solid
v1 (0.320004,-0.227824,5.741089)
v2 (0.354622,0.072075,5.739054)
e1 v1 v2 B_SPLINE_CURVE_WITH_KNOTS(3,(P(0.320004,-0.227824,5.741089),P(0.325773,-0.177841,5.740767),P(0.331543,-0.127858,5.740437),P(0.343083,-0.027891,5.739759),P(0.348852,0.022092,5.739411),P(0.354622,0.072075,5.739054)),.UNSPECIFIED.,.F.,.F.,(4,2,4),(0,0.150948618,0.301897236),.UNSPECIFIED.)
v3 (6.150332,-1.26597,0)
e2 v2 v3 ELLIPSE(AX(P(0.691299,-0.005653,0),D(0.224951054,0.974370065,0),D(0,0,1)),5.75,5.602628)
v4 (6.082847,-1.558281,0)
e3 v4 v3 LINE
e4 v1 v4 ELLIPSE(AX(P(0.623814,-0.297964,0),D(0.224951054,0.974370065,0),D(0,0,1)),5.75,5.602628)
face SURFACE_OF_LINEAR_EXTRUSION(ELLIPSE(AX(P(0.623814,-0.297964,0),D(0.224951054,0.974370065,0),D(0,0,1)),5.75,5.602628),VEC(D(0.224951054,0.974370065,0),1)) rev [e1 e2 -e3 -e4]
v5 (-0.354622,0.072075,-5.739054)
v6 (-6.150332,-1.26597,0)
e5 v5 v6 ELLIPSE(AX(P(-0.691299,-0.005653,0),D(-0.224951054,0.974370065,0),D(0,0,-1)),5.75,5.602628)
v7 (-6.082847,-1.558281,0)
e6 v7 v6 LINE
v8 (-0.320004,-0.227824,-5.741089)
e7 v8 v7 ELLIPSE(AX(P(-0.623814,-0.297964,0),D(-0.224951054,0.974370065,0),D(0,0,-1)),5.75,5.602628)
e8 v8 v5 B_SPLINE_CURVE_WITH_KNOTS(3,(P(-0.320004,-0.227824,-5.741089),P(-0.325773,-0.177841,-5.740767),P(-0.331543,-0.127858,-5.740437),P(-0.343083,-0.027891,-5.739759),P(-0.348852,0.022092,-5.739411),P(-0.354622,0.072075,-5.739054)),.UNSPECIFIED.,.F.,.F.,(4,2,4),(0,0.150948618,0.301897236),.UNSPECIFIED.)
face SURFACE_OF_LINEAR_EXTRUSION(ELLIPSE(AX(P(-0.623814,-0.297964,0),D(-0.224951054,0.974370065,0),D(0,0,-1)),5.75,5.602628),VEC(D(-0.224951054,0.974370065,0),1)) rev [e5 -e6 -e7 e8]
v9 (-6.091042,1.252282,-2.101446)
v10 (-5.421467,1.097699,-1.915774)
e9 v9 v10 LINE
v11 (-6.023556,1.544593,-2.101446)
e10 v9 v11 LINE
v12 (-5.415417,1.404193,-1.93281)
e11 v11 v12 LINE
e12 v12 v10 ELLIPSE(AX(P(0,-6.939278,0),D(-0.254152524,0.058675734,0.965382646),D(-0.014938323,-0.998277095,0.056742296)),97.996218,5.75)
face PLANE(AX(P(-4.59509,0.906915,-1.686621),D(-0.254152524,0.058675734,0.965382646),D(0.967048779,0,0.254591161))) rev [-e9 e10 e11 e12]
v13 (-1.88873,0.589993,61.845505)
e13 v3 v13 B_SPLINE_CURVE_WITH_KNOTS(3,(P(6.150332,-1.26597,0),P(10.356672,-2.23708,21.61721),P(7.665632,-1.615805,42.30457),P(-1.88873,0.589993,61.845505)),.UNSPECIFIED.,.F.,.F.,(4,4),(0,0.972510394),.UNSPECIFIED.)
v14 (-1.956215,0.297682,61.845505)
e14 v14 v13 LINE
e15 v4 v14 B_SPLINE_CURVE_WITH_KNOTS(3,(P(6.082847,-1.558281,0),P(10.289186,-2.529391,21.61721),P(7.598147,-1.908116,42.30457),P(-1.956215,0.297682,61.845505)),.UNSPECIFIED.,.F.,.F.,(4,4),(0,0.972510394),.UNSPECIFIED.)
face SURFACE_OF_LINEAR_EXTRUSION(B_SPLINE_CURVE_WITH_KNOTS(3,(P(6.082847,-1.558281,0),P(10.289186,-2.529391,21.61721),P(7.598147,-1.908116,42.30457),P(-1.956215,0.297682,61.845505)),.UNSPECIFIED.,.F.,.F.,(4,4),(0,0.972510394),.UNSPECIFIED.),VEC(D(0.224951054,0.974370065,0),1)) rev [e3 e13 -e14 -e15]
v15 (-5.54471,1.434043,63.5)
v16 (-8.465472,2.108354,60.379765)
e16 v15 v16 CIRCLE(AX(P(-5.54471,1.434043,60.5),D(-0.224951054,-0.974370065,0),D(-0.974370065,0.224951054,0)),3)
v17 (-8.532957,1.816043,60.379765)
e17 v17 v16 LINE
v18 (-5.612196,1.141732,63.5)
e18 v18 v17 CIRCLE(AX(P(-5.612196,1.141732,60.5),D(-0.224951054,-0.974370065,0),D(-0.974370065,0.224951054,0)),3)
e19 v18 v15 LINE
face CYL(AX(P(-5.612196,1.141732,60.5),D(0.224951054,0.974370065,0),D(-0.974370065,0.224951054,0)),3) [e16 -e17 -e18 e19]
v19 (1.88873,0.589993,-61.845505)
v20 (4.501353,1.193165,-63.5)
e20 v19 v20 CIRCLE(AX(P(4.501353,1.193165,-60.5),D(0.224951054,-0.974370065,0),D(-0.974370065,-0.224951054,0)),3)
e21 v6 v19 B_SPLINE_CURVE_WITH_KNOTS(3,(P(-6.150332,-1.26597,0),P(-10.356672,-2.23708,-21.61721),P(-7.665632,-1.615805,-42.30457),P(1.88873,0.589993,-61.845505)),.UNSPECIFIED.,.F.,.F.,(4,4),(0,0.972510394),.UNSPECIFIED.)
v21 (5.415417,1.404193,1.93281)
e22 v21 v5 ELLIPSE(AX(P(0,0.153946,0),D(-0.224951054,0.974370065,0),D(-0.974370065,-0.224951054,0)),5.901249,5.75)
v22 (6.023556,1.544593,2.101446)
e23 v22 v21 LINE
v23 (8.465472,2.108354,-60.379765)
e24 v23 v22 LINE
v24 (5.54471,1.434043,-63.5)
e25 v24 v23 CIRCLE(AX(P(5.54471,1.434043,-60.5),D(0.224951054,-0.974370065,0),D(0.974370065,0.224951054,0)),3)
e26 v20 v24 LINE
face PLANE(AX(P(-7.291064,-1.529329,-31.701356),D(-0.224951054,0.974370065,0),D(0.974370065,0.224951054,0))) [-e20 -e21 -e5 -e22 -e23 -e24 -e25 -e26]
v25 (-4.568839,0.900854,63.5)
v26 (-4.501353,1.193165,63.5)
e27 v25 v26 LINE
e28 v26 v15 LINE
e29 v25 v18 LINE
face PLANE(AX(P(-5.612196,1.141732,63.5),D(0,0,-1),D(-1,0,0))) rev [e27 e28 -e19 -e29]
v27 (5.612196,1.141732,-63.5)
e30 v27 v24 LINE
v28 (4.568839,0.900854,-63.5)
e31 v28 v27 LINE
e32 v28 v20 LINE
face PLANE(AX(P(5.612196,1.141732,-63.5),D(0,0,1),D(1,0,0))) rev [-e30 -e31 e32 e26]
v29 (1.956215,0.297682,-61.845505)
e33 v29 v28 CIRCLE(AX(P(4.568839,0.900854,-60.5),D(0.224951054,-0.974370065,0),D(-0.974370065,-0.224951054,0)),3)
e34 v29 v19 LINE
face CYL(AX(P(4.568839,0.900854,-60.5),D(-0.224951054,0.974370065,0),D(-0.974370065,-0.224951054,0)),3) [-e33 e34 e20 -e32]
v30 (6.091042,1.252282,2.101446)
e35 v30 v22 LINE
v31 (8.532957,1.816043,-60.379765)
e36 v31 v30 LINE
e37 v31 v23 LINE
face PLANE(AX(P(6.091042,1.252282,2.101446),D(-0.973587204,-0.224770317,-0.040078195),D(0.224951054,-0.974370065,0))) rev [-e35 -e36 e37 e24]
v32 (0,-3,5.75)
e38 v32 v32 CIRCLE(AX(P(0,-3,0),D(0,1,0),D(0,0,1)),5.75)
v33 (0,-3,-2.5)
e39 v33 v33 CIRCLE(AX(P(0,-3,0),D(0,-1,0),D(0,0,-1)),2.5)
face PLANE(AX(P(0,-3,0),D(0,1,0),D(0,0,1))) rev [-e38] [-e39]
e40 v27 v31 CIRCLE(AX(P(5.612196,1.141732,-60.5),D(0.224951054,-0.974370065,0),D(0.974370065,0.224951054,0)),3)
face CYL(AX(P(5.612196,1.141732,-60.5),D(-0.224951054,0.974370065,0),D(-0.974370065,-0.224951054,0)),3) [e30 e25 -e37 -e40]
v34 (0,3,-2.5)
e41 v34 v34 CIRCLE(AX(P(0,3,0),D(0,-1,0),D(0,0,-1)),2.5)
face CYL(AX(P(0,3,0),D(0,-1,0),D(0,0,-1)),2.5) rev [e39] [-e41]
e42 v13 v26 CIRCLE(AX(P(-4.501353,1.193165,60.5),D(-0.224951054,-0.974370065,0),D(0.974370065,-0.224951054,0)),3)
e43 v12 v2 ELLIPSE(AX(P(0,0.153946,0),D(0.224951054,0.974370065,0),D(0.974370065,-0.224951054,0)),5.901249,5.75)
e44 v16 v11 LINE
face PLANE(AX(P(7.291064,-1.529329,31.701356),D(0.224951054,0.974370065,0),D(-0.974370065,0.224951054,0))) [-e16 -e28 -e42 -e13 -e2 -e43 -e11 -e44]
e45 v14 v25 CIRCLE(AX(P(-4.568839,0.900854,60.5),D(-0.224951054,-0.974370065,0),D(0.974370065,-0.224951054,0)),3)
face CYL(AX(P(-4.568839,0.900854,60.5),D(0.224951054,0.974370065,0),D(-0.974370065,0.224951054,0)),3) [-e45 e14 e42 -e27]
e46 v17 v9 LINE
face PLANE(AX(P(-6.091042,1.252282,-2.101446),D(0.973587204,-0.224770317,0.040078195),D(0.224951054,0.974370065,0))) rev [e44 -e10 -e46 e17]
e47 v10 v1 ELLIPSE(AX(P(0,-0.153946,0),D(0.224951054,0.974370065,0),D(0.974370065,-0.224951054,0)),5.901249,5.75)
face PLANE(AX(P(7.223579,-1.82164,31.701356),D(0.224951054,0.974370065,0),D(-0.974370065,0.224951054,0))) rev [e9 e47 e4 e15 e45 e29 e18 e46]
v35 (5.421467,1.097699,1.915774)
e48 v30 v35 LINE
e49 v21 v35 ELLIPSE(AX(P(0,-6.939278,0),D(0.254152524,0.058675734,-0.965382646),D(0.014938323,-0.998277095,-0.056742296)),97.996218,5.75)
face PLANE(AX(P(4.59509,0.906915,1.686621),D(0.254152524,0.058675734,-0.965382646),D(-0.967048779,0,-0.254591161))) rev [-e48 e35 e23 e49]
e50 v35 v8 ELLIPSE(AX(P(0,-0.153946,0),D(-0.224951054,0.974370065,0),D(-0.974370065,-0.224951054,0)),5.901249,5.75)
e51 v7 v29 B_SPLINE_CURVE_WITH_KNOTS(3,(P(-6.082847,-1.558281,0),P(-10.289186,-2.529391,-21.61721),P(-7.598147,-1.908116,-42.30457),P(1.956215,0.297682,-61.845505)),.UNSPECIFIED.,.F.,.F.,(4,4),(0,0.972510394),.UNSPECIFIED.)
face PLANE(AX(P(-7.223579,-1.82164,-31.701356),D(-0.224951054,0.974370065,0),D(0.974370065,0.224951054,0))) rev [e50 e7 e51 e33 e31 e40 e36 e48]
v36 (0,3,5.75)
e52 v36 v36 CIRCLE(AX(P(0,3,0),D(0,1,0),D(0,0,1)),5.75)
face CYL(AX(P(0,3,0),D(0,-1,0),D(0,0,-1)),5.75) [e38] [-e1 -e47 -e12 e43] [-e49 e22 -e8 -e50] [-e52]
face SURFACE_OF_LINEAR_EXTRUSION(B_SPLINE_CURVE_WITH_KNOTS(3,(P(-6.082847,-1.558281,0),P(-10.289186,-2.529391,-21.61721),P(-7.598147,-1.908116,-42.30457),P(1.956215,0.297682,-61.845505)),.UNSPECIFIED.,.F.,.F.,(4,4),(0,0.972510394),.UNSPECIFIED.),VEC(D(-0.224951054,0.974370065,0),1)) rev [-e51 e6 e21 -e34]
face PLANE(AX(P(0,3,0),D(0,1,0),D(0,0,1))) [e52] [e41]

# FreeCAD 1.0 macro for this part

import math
import FreeCAD as App
import Part
import Sketcher
from FreeCAD import Vector
Q = App.Units.Quantity

doc = App.newDocument("Part")
body = doc.addObject("PartDesign::Body", "Body")

sketch1 = body.newObject("Sketcher::SketchObject", "Sketch")
sketch1.AttachmentSupport = (doc.getObject("XZ_Plane"), [""])
sketch1.MapMode = "FlatFace"
sketch1.addGeometry(Part.Circle(Vector(0, 0, 0), Vector(0, 0, 1), 5.75), False)
sketch1.addConstraint([
    Sketcher.Constraint("Coincident", 0, 3, -1, 1),
    Sketcher.Constraint("Diameter", 0, Q("11.5 mm")),
])
pad1 = body.newObject("PartDesign::Pad", "Pad")
pad1.Profile = sketch1
pad1.Length = 6
pad1.Midplane = True

sketch2 = body.newObject("Sketcher::SketchObject", "Sketch001")
sketch2.Placement = App.Placement(Vector(0, 0, 0), App.Rotation(Vector(0.974370065, -0.224951054, 0), Vector(0, 0, 1), Vector(-0.224951054, -0.974370065, 0), "ZXY"))
sketch2.addGeometry([
    Part.LineSegment(Vector(-6.216631, -2.101446, 0), Vector(-4.68133, -1.686621, 0)),
    Part.BSplineCurve([Vector(6.277481, 0, 0), Vector(6.277481, 6.67657, 0), Vector(-0.156031, 5.686417, 0), Vector(-6.589544, 4.696264, 0), Vector(-4.68133, -1.686621, 0)], [3, 2, 3], [4.71238898, 6.432037026, 8.151685071], False, 2, [1, 0.652570821, 1, 0.652570821, 1], False),
    Part.BSplineCurve([Vector(6.277481, 0, 0), Vector(10.594464, 21.61721, 0), Vector(7.83264, 42.30457, 0), Vector(-1.973042, 61.845505, 0)], [4, 4], [0, 0.972510394], False, 3, [1, 1, 1, 1], False),
    Part.ArcOfCircle(Part.Circle(Vector(-4.654388, 60.5, 0), Vector(0, 0, 1), 3), math.radians(26.647592), math.radians(90)),
    Part.LineSegment(Vector(-4.654388, 63.5, 0), Vector(-5.725189, 63.5, 0)),
    Part.ArcOfCircle(Part.Circle(Vector(-5.725189, 60.5, 0), Vector(0, 0, 1), 3), math.radians(90), math.radians(182.296927)),
    Part.LineSegment(Vector(-8.722779, 60.379765, 0), Vector(-6.216631, -2.101446, 0)),
], False)
sketch2.addConstraint([
    Sketcher.Constraint("Block", 1),
    Sketcher.Constraint("Block", 2),
    Sketcher.Constraint("Coincident", 0, 2, 1, 2),
    Sketcher.Constraint("Coincident", 2, 2, 3, 1),
    Sketcher.Constraint("Coincident", 3, 2, 4, 1),
    Sketcher.Constraint("Coincident", 4, 2, 5, 1),
    Sketcher.Constraint("Coincident", 5, 2, 6, 1),
    Sketcher.Constraint("Coincident", 6, 2, 0, 1),
    Sketcher.Constraint("Horizontal", 4),
    Sketcher.Constraint("Radius", 3, Q("3 mm")),
    Sketcher.Constraint("Radius", 5, Q("3 mm")),
    Sketcher.Constraint("DistanceY", -1, 1, 3, 3, Q("60.5 mm")),
    Sketcher.Constraint("DistanceX", 4, 2, 4, 1, Q("1.070801 mm")),
    Sketcher.Constraint("DistanceX", 5, 3, 3, 3, Q("1.070801 mm")),
    Sketcher.Constraint("DistanceX", 5, 3, 3, 2, Q("1.070801 mm")),
    Sketcher.Constraint("DistanceX", 6, 2, 0, 2, Q("1.535301 mm")),
    Sketcher.Constraint("DistanceX", 5, 2, -1, 1, Q("8.722779 mm")),
    Sketcher.Constraint("DistanceY", 6, 2, 5, 2, Q("62.481211 mm")),
])
pad2 = body.newObject("PartDesign::Pad", "Pad001")
pad2.Profile = sketch2
pad2.Length = 0.3
pad2.Midplane = True
doc.recompute()

polarpattern = body.newObject("PartDesign::PolarPattern", "PolarPattern")
polarpattern.Originals = [pad2]
polarpattern.Axis = (doc.getObject("Y_Axis"), [""])
polarpattern.Angle = 360
polarpattern.Occurrences = 2
body.Tip = polarpattern

sketch3 = body.newObject("Sketcher::SketchObject", "Sketch002")
sketch3.AttachmentSupport = (doc.getObject("XZ_Plane"), [""])
sketch3.MapMode = "FlatFace"
sketch3.AttachmentOffset = App.Placement(Vector(0, 0, 3), App.Rotation())
sketch3.addGeometry(Part.Circle(Vector(0, 0, 0), Vector(0, 0, 1), 2.5), False)
sketch3.addConstraint([
    Sketcher.Constraint("Coincident", 0, 3, -1, 1),
    Sketcher.Constraint("Diameter", 0, Q("5 mm")),
])
pocket1 = body.newObject("PartDesign::Pocket", "Pocket")
pocket1.Profile = sketch3
pocket1.Type = "ThroughAll"

doc.recompute()
